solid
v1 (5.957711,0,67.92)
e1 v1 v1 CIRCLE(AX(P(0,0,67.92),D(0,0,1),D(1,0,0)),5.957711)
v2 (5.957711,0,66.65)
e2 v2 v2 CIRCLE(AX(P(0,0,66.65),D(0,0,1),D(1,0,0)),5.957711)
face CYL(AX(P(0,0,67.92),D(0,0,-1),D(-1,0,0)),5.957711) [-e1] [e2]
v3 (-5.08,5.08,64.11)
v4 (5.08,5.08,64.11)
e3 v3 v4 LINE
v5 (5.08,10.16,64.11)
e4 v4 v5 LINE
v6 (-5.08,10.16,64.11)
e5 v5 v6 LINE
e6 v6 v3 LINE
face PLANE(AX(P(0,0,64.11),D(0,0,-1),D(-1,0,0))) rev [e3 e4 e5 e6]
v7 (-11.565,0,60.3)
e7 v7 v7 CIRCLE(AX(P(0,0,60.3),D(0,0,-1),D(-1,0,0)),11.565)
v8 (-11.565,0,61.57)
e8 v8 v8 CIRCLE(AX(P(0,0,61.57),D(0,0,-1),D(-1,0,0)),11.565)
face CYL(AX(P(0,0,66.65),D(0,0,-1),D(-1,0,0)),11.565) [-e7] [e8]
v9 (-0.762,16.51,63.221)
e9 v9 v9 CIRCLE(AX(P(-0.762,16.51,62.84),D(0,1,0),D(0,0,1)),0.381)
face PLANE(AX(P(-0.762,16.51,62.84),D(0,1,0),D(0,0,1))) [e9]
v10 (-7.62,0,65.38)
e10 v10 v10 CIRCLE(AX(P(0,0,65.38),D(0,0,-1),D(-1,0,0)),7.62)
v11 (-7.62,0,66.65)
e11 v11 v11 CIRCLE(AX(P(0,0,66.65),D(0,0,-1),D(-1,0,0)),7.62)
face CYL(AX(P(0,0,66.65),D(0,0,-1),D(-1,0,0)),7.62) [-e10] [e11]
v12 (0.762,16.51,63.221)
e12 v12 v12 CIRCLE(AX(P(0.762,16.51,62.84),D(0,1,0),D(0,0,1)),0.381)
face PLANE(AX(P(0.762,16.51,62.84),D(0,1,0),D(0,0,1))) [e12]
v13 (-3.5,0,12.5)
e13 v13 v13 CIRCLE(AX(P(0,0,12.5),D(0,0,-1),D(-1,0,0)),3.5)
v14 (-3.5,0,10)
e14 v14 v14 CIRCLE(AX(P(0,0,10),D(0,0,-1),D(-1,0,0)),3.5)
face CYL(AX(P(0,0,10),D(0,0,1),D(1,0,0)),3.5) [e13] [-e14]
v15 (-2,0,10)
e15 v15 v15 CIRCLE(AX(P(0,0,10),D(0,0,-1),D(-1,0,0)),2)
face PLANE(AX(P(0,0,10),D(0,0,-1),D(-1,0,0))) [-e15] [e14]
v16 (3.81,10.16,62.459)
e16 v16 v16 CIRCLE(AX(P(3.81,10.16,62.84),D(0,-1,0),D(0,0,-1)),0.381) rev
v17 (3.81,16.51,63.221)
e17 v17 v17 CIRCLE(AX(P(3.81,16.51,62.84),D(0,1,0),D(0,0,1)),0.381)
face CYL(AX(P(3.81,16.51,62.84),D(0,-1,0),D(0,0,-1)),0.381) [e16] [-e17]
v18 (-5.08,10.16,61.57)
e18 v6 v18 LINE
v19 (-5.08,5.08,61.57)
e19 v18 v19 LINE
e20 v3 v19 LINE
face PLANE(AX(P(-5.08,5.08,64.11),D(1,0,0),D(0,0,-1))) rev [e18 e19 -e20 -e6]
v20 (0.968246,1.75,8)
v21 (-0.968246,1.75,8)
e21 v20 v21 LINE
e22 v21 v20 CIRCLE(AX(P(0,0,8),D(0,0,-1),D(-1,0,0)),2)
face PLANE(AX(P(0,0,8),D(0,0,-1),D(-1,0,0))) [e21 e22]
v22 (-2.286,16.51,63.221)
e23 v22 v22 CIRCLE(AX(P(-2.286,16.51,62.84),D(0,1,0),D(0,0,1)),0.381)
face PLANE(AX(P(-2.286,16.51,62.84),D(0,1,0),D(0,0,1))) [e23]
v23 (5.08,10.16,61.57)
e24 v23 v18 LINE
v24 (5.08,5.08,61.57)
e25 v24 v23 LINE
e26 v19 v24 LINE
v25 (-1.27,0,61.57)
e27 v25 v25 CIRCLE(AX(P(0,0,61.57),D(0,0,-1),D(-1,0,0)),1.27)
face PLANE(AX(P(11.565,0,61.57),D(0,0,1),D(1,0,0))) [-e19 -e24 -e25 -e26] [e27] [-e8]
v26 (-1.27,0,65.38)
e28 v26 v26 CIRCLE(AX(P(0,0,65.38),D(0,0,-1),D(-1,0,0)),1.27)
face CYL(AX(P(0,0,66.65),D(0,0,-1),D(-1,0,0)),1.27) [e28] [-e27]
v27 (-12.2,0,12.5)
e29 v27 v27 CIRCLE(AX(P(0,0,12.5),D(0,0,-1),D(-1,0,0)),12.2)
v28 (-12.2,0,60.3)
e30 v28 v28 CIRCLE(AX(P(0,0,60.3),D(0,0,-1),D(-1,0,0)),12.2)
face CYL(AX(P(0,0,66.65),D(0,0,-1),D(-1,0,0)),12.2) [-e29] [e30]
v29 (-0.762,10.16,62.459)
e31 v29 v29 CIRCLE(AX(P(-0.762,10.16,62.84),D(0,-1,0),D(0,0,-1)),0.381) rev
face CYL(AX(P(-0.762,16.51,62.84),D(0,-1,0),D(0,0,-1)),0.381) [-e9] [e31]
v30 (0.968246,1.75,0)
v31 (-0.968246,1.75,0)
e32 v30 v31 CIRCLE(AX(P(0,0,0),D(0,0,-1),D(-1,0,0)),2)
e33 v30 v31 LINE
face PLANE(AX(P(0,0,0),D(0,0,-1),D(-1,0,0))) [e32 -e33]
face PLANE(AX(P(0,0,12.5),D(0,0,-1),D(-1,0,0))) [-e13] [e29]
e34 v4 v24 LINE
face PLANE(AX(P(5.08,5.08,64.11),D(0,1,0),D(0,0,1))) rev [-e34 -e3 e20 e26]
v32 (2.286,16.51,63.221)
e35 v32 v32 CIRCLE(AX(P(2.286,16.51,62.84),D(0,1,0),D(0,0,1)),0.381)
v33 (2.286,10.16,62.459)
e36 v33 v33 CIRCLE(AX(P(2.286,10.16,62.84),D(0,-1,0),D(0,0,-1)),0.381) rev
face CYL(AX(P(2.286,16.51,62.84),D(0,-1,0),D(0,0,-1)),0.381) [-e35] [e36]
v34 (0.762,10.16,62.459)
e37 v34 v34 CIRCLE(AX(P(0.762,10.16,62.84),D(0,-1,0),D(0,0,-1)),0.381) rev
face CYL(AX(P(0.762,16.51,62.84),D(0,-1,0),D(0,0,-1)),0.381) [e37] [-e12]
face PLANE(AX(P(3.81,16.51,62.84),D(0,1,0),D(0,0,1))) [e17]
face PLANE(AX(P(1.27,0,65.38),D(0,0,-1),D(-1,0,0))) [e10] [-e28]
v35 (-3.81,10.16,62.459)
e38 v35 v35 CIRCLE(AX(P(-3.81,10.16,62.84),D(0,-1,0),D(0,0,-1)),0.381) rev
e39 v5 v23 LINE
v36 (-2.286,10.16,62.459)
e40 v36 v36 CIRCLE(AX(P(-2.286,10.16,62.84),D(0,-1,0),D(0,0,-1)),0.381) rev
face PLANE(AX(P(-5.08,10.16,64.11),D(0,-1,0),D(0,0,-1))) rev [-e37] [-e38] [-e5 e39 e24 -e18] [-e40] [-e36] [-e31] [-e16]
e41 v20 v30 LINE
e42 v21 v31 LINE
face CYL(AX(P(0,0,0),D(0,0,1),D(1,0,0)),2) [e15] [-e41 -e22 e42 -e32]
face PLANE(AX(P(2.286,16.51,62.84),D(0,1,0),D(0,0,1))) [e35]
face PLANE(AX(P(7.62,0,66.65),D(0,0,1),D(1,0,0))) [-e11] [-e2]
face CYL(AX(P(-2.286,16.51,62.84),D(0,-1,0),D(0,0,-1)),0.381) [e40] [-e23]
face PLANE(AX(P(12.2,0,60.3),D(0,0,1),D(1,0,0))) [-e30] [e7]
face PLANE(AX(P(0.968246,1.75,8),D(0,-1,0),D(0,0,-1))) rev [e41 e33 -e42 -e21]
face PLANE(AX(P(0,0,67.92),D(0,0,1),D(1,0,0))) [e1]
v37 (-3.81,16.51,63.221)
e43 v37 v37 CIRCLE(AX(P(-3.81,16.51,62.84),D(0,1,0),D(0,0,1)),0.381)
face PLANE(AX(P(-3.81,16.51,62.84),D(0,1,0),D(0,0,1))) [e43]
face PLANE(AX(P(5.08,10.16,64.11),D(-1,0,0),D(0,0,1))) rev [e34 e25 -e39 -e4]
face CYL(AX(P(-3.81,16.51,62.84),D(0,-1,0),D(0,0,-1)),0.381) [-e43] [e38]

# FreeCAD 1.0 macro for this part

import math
import FreeCAD as App
import Part
import Sketcher
from FreeCAD import Vector
Q = App.Units.Quantity


def add_polygon(sketch, points):
    """Adds a closed chain of lines whose ends are joined by coincident constraints."""
    first, n = sketch.GeometryCount, len(points)
    for a, b in zip(points, points[1:] + points[:1]):
        sketch.addGeometry(Part.LineSegment(App.Vector(*a, 0), App.Vector(*b, 0)), False)
    for i in range(n):
        sketch.addConstraint(Sketcher.Constraint("Coincident", first + i, 2, first + (i + 1) % n, 1))

doc = App.newDocument("Part")
params = doc.addObject("Spreadsheet::Sheet", "Params")
for row, (alias, value) in enumerate([
    ("sketch1_width", "0.3 in"),
    ("sketch1_width2", "0.25 in"),
    ("sketch1_height", "0.05 in"),
    ("sketch1_height2", "0.15 in"),
    ("sketch1_width3", "0.025 in"),
    ("revolution_angle", "360 deg"),
    ("pad1_length", "2.5 mm"),
    ("pad2_length", "10 mm"),
    ("pocket1_length", "8 mm"),
    ("pad3_length", "0.05 in"),
    ("sketch6_width", "0.4 in"),
    ("sketch6_height", "0.2 in"),
    ("pad4_length", "0.1 in"),
    ("sketch7_diameter", "0.03 in"),
    ("pad5_length", "0.25 in"),
    ("sketch8_diameter", "0.03 in"),
    ("pad6_length", "0.25 in"),
    ("sketch9_diameter", "0.03 in"),
    ("pad7_length", "0.25 in"),
    ("sketch10_diameter", "0.03 in"),
    ("pad8_length", "0.25 in"),
    ("sketch11_diameter", "0.03 in"),
    ("pad9_length", "0.25 in"),
    ("sketch12_diameter", "0.03 in"),
    ("pad10_length", "0.25 in"),
], start=1):
    params.set(f"A{row}", alias)
    params.set(f"B{row}", "=" + value)
    params.setAlias(f"B{row}", alias)

body = doc.addObject("PartDesign::Body", "Body")

# Sketch on XZ plane
sketch1 = doc.addObject("Sketcher::SketchObject", "Sketch")
body.addObject(sketch1)
sketch1.AttachmentSupport = (doc.XZ_Plane, [""])
sketch1.MapMode = "FlatFace"
add_polygon(sketch1, [(7.62, 66.65), (0, 66.65), (0, 12.5), (12.2, 12.5), (12.2, 60.3), (11.565, 60.3), (11.565, 61.57), (1.27, 61.57), (1.27, 65.38), (7.62, 65.38)])  # lines 0-9
sketch1.addConstraint([
    Sketcher.Constraint("Horizontal", 0),
    Sketcher.Constraint("Vertical", 1),
    Sketcher.Constraint("Horizontal", 2),
    Sketcher.Constraint("Vertical", 3),
    Sketcher.Constraint("Horizontal", 4),
    Sketcher.Constraint("Vertical", 5),
    Sketcher.Constraint("Horizontal", 6),
    Sketcher.Constraint("Vertical", 7),
    Sketcher.Constraint("Horizontal", 8),
    Sketcher.Constraint("Vertical", 9),
    Sketcher.Constraint("PointOnObject", 0, 2, -2),
    Sketcher.Constraint("Equal", 5, 9),
    Sketcher.Constraint("DistanceX", 0, 2, 0, 1, Q("0.3 in")),
    Sketcher.Constraint("DistanceX", 8, 1, 8, 2, Q("0.25 in")),
    Sketcher.Constraint("DistanceY", 5, 1, 5, 2, Q("0.05 in")),
    Sketcher.Constraint("DistanceY", 7, 1, 7, 2, Q("0.15 in")),
    Sketcher.Constraint("DistanceX", 4, 2, 4, 1, Q("0.025 in")),
    Sketcher.Constraint("DistanceX", 2, 1, 2, 2, Q("12.2 mm")),
    Sketcher.Constraint("DistanceY", 1, 2, 1, 1, Q("54.15 mm")),
    Sketcher.Constraint("DistanceY", -1, 1, 0, 2, Q("66.65 mm")),
])
sketch1.setExpression("Constraints[22]", "Params.sketch1_width")
sketch1.setExpression("Constraints[23]", "Params.sketch1_width2")
sketch1.setExpression("Constraints[24]", "Params.sketch1_height")
sketch1.setExpression("Constraints[25]", "Params.sketch1_height2")
sketch1.setExpression("Constraints[26]", "Params.sketch1_width3")
revolution = doc.addObject("PartDesign::Revolution", "Revolution")
body.addObject(revolution)
revolution.Profile = sketch1
revolution.ReferenceAxis = (sketch1, ["V_Axis"])
revolution.setExpression("Angle", "Params.revolution_angle")

# Sketch on XY plane
sketch2 = doc.addObject("Sketcher::SketchObject", "Sketch001")
body.addObject(sketch2)
sketch2.AttachmentSupport = (doc.XY_Plane, [""])
sketch2.MapMode = "FlatFace"
sketch2.AttachmentOffset = App.Placement(Vector(0, 0, 12.5), App.Rotation())
sketch2.addGeometry(Part.Circle(Vector(0, 0, 0), Vector(0, 0, 1), 3.5), False)
sketch2.addConstraint([
    Sketcher.Constraint("Coincident", 0, 3, -1, 1),
    Sketcher.Constraint("Diameter", 0, Q("7 mm")),
])
pad1 = doc.addObject("PartDesign::Pad", "Pad")
body.addObject(pad1)
pad1.Profile = sketch2
pad1.setExpression("Length", "Params.pad1_length")
pad1.Reversed = True

# Sketch on XY plane
sketch3 = doc.addObject("Sketcher::SketchObject", "Sketch002")
body.addObject(sketch3)
sketch3.AttachmentSupport = (doc.XY_Plane, [""])
sketch3.MapMode = "FlatFace"
sketch3.AttachmentOffset = App.Placement(Vector(0, 0, 10), App.Rotation())
sketch3.addGeometry(Part.Circle(Vector(0, 0, 0), Vector(0, 0, 1), 2), False)
sketch3.addConstraint([
    Sketcher.Constraint("Coincident", 0, 3, -1, 1),
    Sketcher.Constraint("Diameter", 0, Q("4 mm")),
])
pad2 = doc.addObject("PartDesign::Pad", "Pad001")
body.addObject(pad2)
pad2.Profile = sketch3
pad2.setExpression("Length", "Params.pad2_length")
pad2.Reversed = True

# Sketch on XY plane
sketch4 = doc.addObject("Sketcher::SketchObject", "Sketch003")
body.addObject(sketch4)
sketch4.AttachmentSupport = (doc.XY_Plane, [""])
sketch4.MapMode = "FlatFace"
sketch4.AttachmentOffset = App.Placement(Vector(0, 0, 8), App.Rotation())
sketch4.addGeometry([
    Part.LineSegment(Vector(0.968246, 1.75, 0), Vector(-0.968246, 1.75, 0)),
    Part.ArcOfCircle(Part.Circle(Vector(0, 0, 0), Vector(0, 0, 1), 2), math.radians(61.044976), math.radians(118.955024)),
], False)
sketch4.addConstraint([
    Sketcher.Constraint("Coincident", 0, 1, 1, 1),
    Sketcher.Constraint("Coincident", 1, 2, 0, 2),
    Sketcher.Constraint("Horizontal", 0),
    Sketcher.Constraint("Coincident", 1, 3, -1, 1),
    Sketcher.Constraint("Radius", 1, Q("2 mm")),
    Sketcher.Constraint("DistanceX", 0, 2, 0, 1, Q("1.936492 mm")),
])
pocket1 = doc.addObject("PartDesign::Pocket", "Pocket")
body.addObject(pocket1)
pocket1.Profile = sketch4
pocket1.setExpression("Length", "Params.pocket1_length")

# Sketch on XY plane
sketch5 = doc.addObject("Sketcher::SketchObject", "Sketch004")
body.addObject(sketch5)
sketch5.AttachmentSupport = (doc.XY_Plane, [""])
sketch5.MapMode = "FlatFace"
sketch5.AttachmentOffset = App.Placement(Vector(0, 0, 66.65), App.Rotation())
sketch5.addGeometry(Part.Circle(Vector(0, 0, 0), Vector(0, 0, 1), 5.957711), False)
sketch5.addConstraint([
    Sketcher.Constraint("Coincident", 0, 3, -1, 1),
    Sketcher.Constraint("Diameter", 0, Q("11.915422 mm")),
])
pad3 = doc.addObject("PartDesign::Pad", "Pad002")
body.addObject(pad3)
pad3.Profile = sketch5
pad3.setExpression("Length", "Params.pad3_length")

# Sketch on XY plane
sketch6 = doc.addObject("Sketcher::SketchObject", "Sketch005")
body.addObject(sketch6)
sketch6.AttachmentSupport = (doc.XY_Plane, [""])
sketch6.MapMode = "FlatFace"
sketch6.AttachmentOffset = App.Placement(Vector(0, 0, 61.57), App.Rotation())
add_polygon(sketch6, [(-5.08, 10.16), (-5.08, 5.08), (5.08, 5.08), (5.08, 10.16)])  # lines 0-3
sketch6.addConstraint([
    Sketcher.Constraint("Vertical", 0),
    Sketcher.Constraint("Horizontal", 1),
    Sketcher.Constraint("Vertical", 2),
    Sketcher.Constraint("Horizontal", 3),
    Sketcher.Constraint("DistanceX", 1, 1, 1, 2, Q("0.4 in")),
    Sketcher.Constraint("DistanceY", 0, 2, 0, 1, Q("0.2 in")),
    Sketcher.Constraint("DistanceX", 0, 2, -1, 1, Q("0.2 in")),
    Sketcher.Constraint("DistanceY", -1, 1, 0, 2, Q("0.2 in")),
])
sketch6.setExpression("Constraints[8]", "Params.sketch6_width")
sketch6.setExpression("Constraints[9]", "Params.sketch6_height")
pad4 = doc.addObject("PartDesign::Pad", "Pad003")
body.addObject(pad4)
pad4.Profile = sketch6
pad4.setExpression("Length", "Params.pad4_length")

# Sketch on XZ plane
sketch7 = doc.addObject("Sketcher::SketchObject", "Sketch006")
body.addObject(sketch7)
sketch7.AttachmentSupport = (doc.XZ_Plane, [""])
sketch7.MapMode = "FlatFace"
sketch7.AttachmentOffset = App.Placement(Vector(0, 0, -0.4 * 25.4), App.Rotation())
sketch7.addGeometry(Part.Circle(Vector(2.286, 62.84, 0), Vector(0, 0, 1), 0.381), False)
sketch7.addConstraint([
    Sketcher.Constraint("Diameter", 0, Q("0.03 in")),
    Sketcher.Constraint("DistanceX", -1, 1, 0, 3, Q("0.09 in")),
    Sketcher.Constraint("DistanceY", -1, 1, 0, 3, Q("62.84 mm")),
])
sketch7.setExpression("Constraints[0]", "Params.sketch7_diameter")
pad5 = doc.addObject("PartDesign::Pad", "Pad004")
body.addObject(pad5)
pad5.Profile = sketch7
pad5.setExpression("Length", "Params.pad5_length")
pad5.Reversed = True

# Sketch on XZ plane
sketch8 = doc.addObject("Sketcher::SketchObject", "Sketch007")
body.addObject(sketch8)
sketch8.AttachmentSupport = (doc.XZ_Plane, [""])
sketch8.MapMode = "FlatFace"
sketch8.AttachmentOffset = App.Placement(Vector(0, 0, -0.4 * 25.4), App.Rotation())
sketch8.addGeometry(Part.Circle(Vector(-3.81, 62.84, 0), Vector(0, 0, 1), 0.381), False)
sketch8.addConstraint([
    Sketcher.Constraint("Diameter", 0, Q("0.03 in")),
    Sketcher.Constraint("DistanceX", 0, 3, -1, 1, Q("0.15 in")),
    Sketcher.Constraint("DistanceY", -1, 1, 0, 3, Q("62.84 mm")),
])
sketch8.setExpression("Constraints[0]", "Params.sketch8_diameter")
pad6 = doc.addObject("PartDesign::Pad", "Pad005")
body.addObject(pad6)
pad6.Profile = sketch8
pad6.setExpression("Length", "Params.pad6_length")
pad6.Reversed = True

# Sketch on XZ plane
sketch9 = doc.addObject("Sketcher::SketchObject", "Sketch008")
body.addObject(sketch9)
sketch9.AttachmentSupport = (doc.XZ_Plane, [""])
sketch9.MapMode = "FlatFace"
sketch9.AttachmentOffset = App.Placement(Vector(0, 0, -0.4 * 25.4), App.Rotation())
sketch9.addGeometry(Part.Circle(Vector(-0.762, 62.84, 0), Vector(0, 0, 1), 0.381), False)
sketch9.addConstraint([
    Sketcher.Constraint("Diameter", 0, Q("0.03 in")),
    Sketcher.Constraint("DistanceX", 0, 3, -1, 1, Q("0.03 in")),
    Sketcher.Constraint("DistanceY", -1, 1, 0, 3, Q("62.84 mm")),
])
sketch9.setExpression("Constraints[0]", "Params.sketch9_diameter")
pad7 = doc.addObject("PartDesign::Pad", "Pad006")
body.addObject(pad7)
pad7.Profile = sketch9
pad7.setExpression("Length", "Params.pad7_length")
pad7.Reversed = True

# Sketch on XZ plane
sketch10 = doc.addObject("Sketcher::SketchObject", "Sketch009")
body.addObject(sketch10)
sketch10.AttachmentSupport = (doc.XZ_Plane, [""])
sketch10.MapMode = "FlatFace"
sketch10.AttachmentOffset = App.Placement(Vector(0, 0, -0.4 * 25.4), App.Rotation())
sketch10.addGeometry(Part.Circle(Vector(-2.286, 62.84, 0), Vector(0, 0, 1), 0.381), False)
sketch10.addConstraint([
    Sketcher.Constraint("Diameter", 0, Q("0.03 in")),
    Sketcher.Constraint("DistanceX", 0, 3, -1, 1, Q("0.09 in")),
    Sketcher.Constraint("DistanceY", -1, 1, 0, 3, Q("62.84 mm")),
])
sketch10.setExpression("Constraints[0]", "Params.sketch10_diameter")
pad8 = doc.addObject("PartDesign::Pad", "Pad007")
body.addObject(pad8)
pad8.Profile = sketch10
pad8.setExpression("Length", "Params.pad8_length")
pad8.Reversed = True

# Sketch on XZ plane
sketch11 = doc.addObject("Sketcher::SketchObject", "Sketch010")
body.addObject(sketch11)
sketch11.AttachmentSupport = (doc.XZ_Plane, [""])
sketch11.MapMode = "FlatFace"
sketch11.AttachmentOffset = App.Placement(Vector(0, 0, -0.4 * 25.4), App.Rotation())
sketch11.addGeometry(Part.Circle(Vector(0.762, 62.84, 0), Vector(0, 0, 1), 0.381), False)
sketch11.addConstraint([
    Sketcher.Constraint("Diameter", 0, Q("0.03 in")),
    Sketcher.Constraint("DistanceX", -1, 1, 0, 3, Q("0.03 in")),
    Sketcher.Constraint("DistanceY", -1, 1, 0, 3, Q("62.84 mm")),
])
sketch11.setExpression("Constraints[0]", "Params.sketch11_diameter")
pad9 = doc.addObject("PartDesign::Pad", "Pad008")
body.addObject(pad9)
pad9.Profile = sketch11
pad9.setExpression("Length", "Params.pad9_length")
pad9.Reversed = True

# Sketch on XZ plane
sketch12 = doc.addObject("Sketcher::SketchObject", "Sketch011")
body.addObject(sketch12)
sketch12.AttachmentSupport = (doc.XZ_Plane, [""])
sketch12.MapMode = "FlatFace"
sketch12.AttachmentOffset = App.Placement(Vector(0, 0, -0.4 * 25.4), App.Rotation())
sketch12.addGeometry(Part.Circle(Vector(3.81, 62.84, 0), Vector(0, 0, 1), 0.381), False)
sketch12.addConstraint([
    Sketcher.Constraint("Diameter", 0, Q("0.03 in")),
    Sketcher.Constraint("DistanceX", -1, 1, 0, 3, Q("0.15 in")),
    Sketcher.Constraint("DistanceY", -1, 1, 0, 3, Q("62.84 mm")),
])
sketch12.setExpression("Constraints[0]", "Params.sketch12_diameter")
pad10 = doc.addObject("PartDesign::Pad", "Pad009")
body.addObject(pad10)
pad10.Profile = sketch12
pad10.setExpression("Length", "Params.pad10_length")
pad10.Reversed = True

doc.recompute()
